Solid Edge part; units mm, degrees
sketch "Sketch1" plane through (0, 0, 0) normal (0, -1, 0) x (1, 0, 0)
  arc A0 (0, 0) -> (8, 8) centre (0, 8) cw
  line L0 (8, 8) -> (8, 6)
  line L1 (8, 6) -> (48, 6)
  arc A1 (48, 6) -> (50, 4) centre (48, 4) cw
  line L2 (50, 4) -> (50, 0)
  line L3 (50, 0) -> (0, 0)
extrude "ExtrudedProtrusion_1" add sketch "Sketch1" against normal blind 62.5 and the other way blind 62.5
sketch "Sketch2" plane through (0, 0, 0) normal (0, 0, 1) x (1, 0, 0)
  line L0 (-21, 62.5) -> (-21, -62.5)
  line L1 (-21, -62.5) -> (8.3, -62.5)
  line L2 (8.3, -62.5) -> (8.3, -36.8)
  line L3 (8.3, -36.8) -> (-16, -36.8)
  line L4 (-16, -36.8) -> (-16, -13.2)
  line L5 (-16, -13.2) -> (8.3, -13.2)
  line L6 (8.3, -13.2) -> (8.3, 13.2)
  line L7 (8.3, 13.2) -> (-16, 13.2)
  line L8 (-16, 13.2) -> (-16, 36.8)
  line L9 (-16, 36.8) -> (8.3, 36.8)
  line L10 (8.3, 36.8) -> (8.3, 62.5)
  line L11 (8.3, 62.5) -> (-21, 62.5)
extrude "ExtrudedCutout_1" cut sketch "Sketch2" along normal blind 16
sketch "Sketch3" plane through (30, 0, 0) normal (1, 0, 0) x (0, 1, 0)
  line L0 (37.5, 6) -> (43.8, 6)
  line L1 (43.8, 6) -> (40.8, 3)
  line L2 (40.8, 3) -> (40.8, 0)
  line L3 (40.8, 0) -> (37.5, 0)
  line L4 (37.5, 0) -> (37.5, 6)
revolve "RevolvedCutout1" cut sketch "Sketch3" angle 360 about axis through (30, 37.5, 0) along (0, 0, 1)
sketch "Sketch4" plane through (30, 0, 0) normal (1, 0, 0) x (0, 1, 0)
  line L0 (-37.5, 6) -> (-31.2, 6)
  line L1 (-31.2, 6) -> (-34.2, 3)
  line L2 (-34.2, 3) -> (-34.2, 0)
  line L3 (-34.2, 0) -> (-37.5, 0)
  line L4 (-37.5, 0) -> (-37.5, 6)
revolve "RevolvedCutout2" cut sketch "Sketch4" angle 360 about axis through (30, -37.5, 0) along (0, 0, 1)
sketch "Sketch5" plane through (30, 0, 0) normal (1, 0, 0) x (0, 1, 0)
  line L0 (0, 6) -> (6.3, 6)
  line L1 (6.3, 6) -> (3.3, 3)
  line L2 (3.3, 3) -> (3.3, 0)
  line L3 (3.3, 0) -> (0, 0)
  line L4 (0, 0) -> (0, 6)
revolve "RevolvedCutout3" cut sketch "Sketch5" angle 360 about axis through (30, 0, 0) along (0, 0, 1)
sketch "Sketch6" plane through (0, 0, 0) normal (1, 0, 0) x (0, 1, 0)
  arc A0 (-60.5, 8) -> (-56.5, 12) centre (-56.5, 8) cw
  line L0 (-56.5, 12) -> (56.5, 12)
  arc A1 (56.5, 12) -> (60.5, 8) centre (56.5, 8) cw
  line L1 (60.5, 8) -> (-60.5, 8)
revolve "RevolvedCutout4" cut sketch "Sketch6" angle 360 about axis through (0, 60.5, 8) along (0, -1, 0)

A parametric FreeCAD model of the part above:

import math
import FreeCAD as App
import Part
import Sketcher

V = App.Vector
Q = App.Units.Quantity

doc = App.newDocument("Part")
body = doc.addObject("PartDesign::Body", "Body")

# Sketch on XZ plane
sketch1 = body.newObject("Sketcher::SketchObject", "Sketch")
sketch1.AttachmentSupport = (doc.getObject("XZ_Plane"), [""])
sketch1.MapMode = "FlatFace"
sketch1.addGeometry([
    Part.ArcOfCircle(Part.Circle(V(0, 8, 0), V(0, 0, 1), 8), math.radians(0), math.radians(270)),  # 0
    Part.LineSegment(V(0, 0, 0), V(50, 0, 0)),  # 1
    Part.LineSegment(V(50, 0, 0), V(50, 4, 0)),  # 2
    Part.ArcOfCircle(Part.Circle(V(48, 4, 0), V(0, 0, 1), 2), math.radians(0), math.radians(90)),  # 3
    Part.LineSegment(V(48, 6, 0), V(8, 6, 0)),  # 4
    Part.LineSegment(V(8, 6, 0), V(8, 8, 0)),  # 5
], False)
sketch1.addConstraint([
    Sketcher.Constraint("Tangent", 0, 2, 1, 1),
    Sketcher.Constraint("Coincident", 1, 2, 2, 1),
    Sketcher.Constraint("Tangent", 2, 2, 3, 1),
    Sketcher.Constraint("Tangent", 3, 2, 4, 1),
    Sketcher.Constraint("Coincident", 4, 2, 5, 1),
    Sketcher.Constraint("Tangent", 5, 2, 0, 1),
    Sketcher.Constraint("Horizontal", 1),
    Sketcher.Constraint("Vertical", 2),
    Sketcher.Constraint("Horizontal", 4),
    Sketcher.Constraint("Vertical", 5),
    Sketcher.Constraint("Coincident", 0, 2, -1, 1),
    Sketcher.Constraint("Radius", 0, Q("8 mm")),
    Sketcher.Constraint("Radius", 3, Q("2 mm")),
    Sketcher.Constraint("DistanceX", 1, 1, 1, 2, Q("50 mm")),
    Sketcher.Constraint("DistanceY", 2, 1, 2, 2, Q("4 mm")),
])
pad1 = body.newObject("PartDesign::Pad", "Pad")
pad1.Profile = sketch1
pad1.Type = "TwoLengths"
pad1.Length = 62.5
pad1.Length2 = 62.5
pad1.Reversed = True

# Sketch on XY plane
sketch2 = body.newObject("Sketcher::SketchObject", "Sketch001")
sketch2.AttachmentSupport = (doc.getObject("XY_Plane"), [""])
sketch2.MapMode = "FlatFace"
sketch2.addGeometry([
    Part.LineSegment(V(8.3, 62.5, 0), V(-21, 62.5, 0)),  # 0
    Part.LineSegment(V(-21, 62.5, 0), V(-21, -62.5, 0)),  # 1
    Part.LineSegment(V(-21, -62.5, 0), V(8.3, -62.5, 0)),  # 2
    Part.LineSegment(V(8.3, -62.5, 0), V(8.3, -36.8, 0)),  # 3
    Part.LineSegment(V(8.3, -36.8, 0), V(-16, -36.8, 0)),  # 4
    Part.LineSegment(V(-16, -36.8, 0), V(-16, -13.2, 0)),  # 5
    Part.LineSegment(V(-16, -13.2, 0), V(8.3, -13.2, 0)),  # 6
    Part.LineSegment(V(8.3, -13.2, 0), V(8.3, 13.2, 0)),  # 7
    Part.LineSegment(V(8.3, 13.2, 0), V(-16, 13.2, 0)),  # 8
    Part.LineSegment(V(-16, 13.2, 0), V(-16, 36.8, 0)),  # 9
    Part.LineSegment(V(-16, 36.8, 0), V(8.3, 36.8, 0)),  # 10
    Part.LineSegment(V(8.3, 36.8, 0), V(8.3, 62.5, 0)),  # 11
], False)
sketch2.addConstraint([
    Sketcher.Constraint("Coincident", 0, 2, 1, 1),
    Sketcher.Constraint("Coincident", 1, 2, 2, 1),
    Sketcher.Constraint("Coincident", 2, 2, 3, 1),
    Sketcher.Constraint("Coincident", 3, 2, 4, 1),
    Sketcher.Constraint("Coincident", 4, 2, 5, 1),
    Sketcher.Constraint("Coincident", 5, 2, 6, 1),
    Sketcher.Constraint("Coincident", 6, 2, 7, 1),
    Sketcher.Constraint("Coincident", 7, 2, 8, 1),
    Sketcher.Constraint("Coincident", 8, 2, 9, 1),
    Sketcher.Constraint("Coincident", 9, 2, 10, 1),
    Sketcher.Constraint("Coincident", 10, 2, 11, 1),
    Sketcher.Constraint("Coincident", 11, 2, 0, 1),
    Sketcher.Constraint("Horizontal", 0),
    Sketcher.Constraint("Vertical", 1),
    Sketcher.Constraint("Horizontal", 2),
    Sketcher.Constraint("Vertical", 3),
    Sketcher.Constraint("Horizontal", 4),
    Sketcher.Constraint("Vertical", 5),
    Sketcher.Constraint("Horizontal", 6),
    Sketcher.Constraint("Vertical", 7),
    Sketcher.Constraint("Horizontal", 8),
    Sketcher.Constraint("Vertical", 9),
    Sketcher.Constraint("Horizontal", 10),
    Sketcher.Constraint("Vertical", 11),
    Sketcher.Constraint("Symmetric", 5, 2, 8, 2, -1),
    Sketcher.Constraint("Symmetric", 3, 2, 10, 2, -1),
    Sketcher.Constraint("Vertical", 3, 2, 6, 2),
    Sketcher.Constraint("Equal", 3, 11),
    Sketcher.Constraint("DistanceY", 1, 2, 1, 1, Q("125 mm")),
    Sketcher.Constraint("DistanceX", 0, 2, 0, 1, Q("29.3 mm")),
    Sketcher.Constraint("DistanceX", 4, 2, 4, 1, Q("24.3 mm")),
    Sketcher.Constraint("DistanceY", 3, 1, 3, 2, Q("25.7 mm")),
    Sketcher.Constraint("DistanceY", 5, 1, 5, 2, Q("23.6 mm")),
    Sketcher.Constraint("DistanceX", 0, 2, -1, 1, Q("21 mm")),
])
pocket1 = body.newObject("PartDesign::Pocket", "Pocket")
pocket1.Profile = sketch2
pocket1.Length = 16
pocket1.Reversed = True

# Sketch on YZ plane
sketch3 = body.newObject("Sketcher::SketchObject", "Sketch002")
sketch3.AttachmentSupport = (doc.getObject("YZ_Plane"), [""])
sketch3.MapMode = "FlatFace"
sketch3.AttachmentOffset = App.Placement(V(0, 0, 30), App.Rotation())
sketch3.addGeometry([
    Part.LineSegment(V(43.8, 6, 0), V(37.5, 6, 0)),  # 0
    Part.LineSegment(V(37.5, 6, 0), V(37.5, 0, 0)),  # 1
    Part.LineSegment(V(37.5, 0, 0), V(40.8, 0, 0)),  # 2
    Part.LineSegment(V(40.8, 0, 0), V(40.8, 3, 0)),  # 3
    Part.LineSegment(V(40.8, 3, 0), V(43.8, 6, 0)),  # 4
], False)
sketch3.addGeometry(Part.LineSegment(V(37.5, 0, 0), V(37.5, 6, 0)), True)  # axis
sketch3.addConstraint([
    Sketcher.Constraint("Coincident", 0, 2, 1, 1),
    Sketcher.Constraint("Coincident", 1, 2, 2, 1),
    Sketcher.Constraint("Coincident", 2, 2, 3, 1),
    Sketcher.Constraint("Coincident", 3, 2, 4, 1),
    Sketcher.Constraint("Coincident", 4, 2, 0, 1),
    Sketcher.Constraint("Horizontal", 0),
    Sketcher.Constraint("Vertical", 1),
    Sketcher.Constraint("Horizontal", 2),
    Sketcher.Constraint("Vertical", 3),
    Sketcher.Constraint("Vertical", 5),
    Sketcher.Constraint("Coincident", 5, 1, 1, 2),
    Sketcher.Constraint("PointOnObject", 1, 2, -1),
    Sketcher.Constraint("Horizontal", 4, 2, 5, 2),
    Sketcher.Constraint("DistanceY", 1, 2, 1, 1, Q("6 mm")),
    Sketcher.Constraint("DistanceY", 3, 1, 3, 2, Q("3 mm")),
    Sketcher.Constraint("Angle", 4, Q("45 deg")),
    Sketcher.Constraint("DistanceX", 0, 2, 0, 1, Q("6.3 mm")),
    Sketcher.Constraint("DistanceX", -1, 1, 0, 2, Q("37.5 mm")),
])
groove = body.newObject("PartDesign::Groove", "Groove")
groove.Profile = sketch3
groove.ReferenceAxis = (sketch3, ["Axis0"])
groove.Angle = 360

# Sketch on YZ plane
sketch4 = body.newObject("Sketcher::SketchObject", "Sketch003")
sketch4.AttachmentSupport = (doc.getObject("YZ_Plane"), [""])
sketch4.MapMode = "FlatFace"
sketch4.AttachmentOffset = App.Placement(V(0, 0, 30), App.Rotation())
sketch4.addGeometry([
    Part.LineSegment(V(-31.2, 6, 0), V(-37.5, 6, 0)),  # 0
    Part.LineSegment(V(-37.5, 6, 0), V(-37.5, 0, 0)),  # 1
    Part.LineSegment(V(-37.5, 0, 0), V(-34.2, 0, 0)),  # 2
    Part.LineSegment(V(-34.2, 0, 0), V(-34.2, 3, 0)),  # 3
    Part.LineSegment(V(-34.2, 3, 0), V(-31.2, 6, 0)),  # 4
], False)
sketch4.addGeometry(Part.LineSegment(V(-37.5, 0, 0), V(-37.5, 6, 0)), True)  # axis
sketch4.addConstraint([
    Sketcher.Constraint("Coincident", 0, 2, 1, 1),
    Sketcher.Constraint("Coincident", 1, 2, 2, 1),
    Sketcher.Constraint("Coincident", 2, 2, 3, 1),
    Sketcher.Constraint("Coincident", 3, 2, 4, 1),
    Sketcher.Constraint("Coincident", 4, 2, 0, 1),
    Sketcher.Constraint("Horizontal", 0),
    Sketcher.Constraint("Vertical", 1),
    Sketcher.Constraint("Horizontal", 2),
    Sketcher.Constraint("Vertical", 3),
    Sketcher.Constraint("Vertical", 5),
    Sketcher.Constraint("Coincident", 5, 1, 1, 2),
    Sketcher.Constraint("PointOnObject", 1, 2, -1),
    Sketcher.Constraint("Horizontal", 4, 2, 5, 2),
    Sketcher.Constraint("DistanceY", 1, 2, 1, 1, Q("6 mm")),
    Sketcher.Constraint("DistanceY", 3, 1, 3, 2, Q("3 mm")),
    Sketcher.Constraint("Angle", 4, Q("45 deg")),
    Sketcher.Constraint("DistanceX", 0, 2, 0, 1, Q("6.3 mm")),
    Sketcher.Constraint("DistanceX", 0, 2, -1, 1, Q("37.5 mm")),
])
groove2 = body.newObject("PartDesign::Groove", "Groove001")
groove2.Profile = sketch4
groove2.ReferenceAxis = (sketch4, ["Axis0"])
groove2.Angle = 360

# Sketch on YZ plane
sketch5 = body.newObject("Sketcher::SketchObject", "Sketch004")
sketch5.AttachmentSupport = (doc.getObject("YZ_Plane"), [""])
sketch5.MapMode = "FlatFace"
sketch5.AttachmentOffset = App.Placement(V(0, 0, 30), App.Rotation())
sketch5.addGeometry([
    Part.LineSegment(V(6.3, 6, 0), V(0, 6, 0)),  # 0
    Part.LineSegment(V(0, 6, 0), V(0, 0, 0)),  # 1
    Part.LineSegment(V(0, 0, 0), V(3.3, 0, 0)),  # 2
    Part.LineSegment(V(3.3, 0, 0), V(3.3, 3, 0)),  # 3
    Part.LineSegment(V(3.3, 3, 0), V(6.3, 6, 0)),  # 4
], False)
sketch5.addConstraint([
    Sketcher.Constraint("Coincident", 0, 2, 1, 1),
    Sketcher.Constraint("Coincident", 1, 2, 2, 1),
    Sketcher.Constraint("Coincident", 2, 2, 3, 1),
    Sketcher.Constraint("Coincident", 3, 2, 4, 1),
    Sketcher.Constraint("Coincident", 4, 2, 0, 1),
    Sketcher.Constraint("Horizontal", 0),
    Sketcher.Constraint("Vertical", 1),
    Sketcher.Constraint("Horizontal", 2),
    Sketcher.Constraint("Vertical", 3),
    Sketcher.Constraint("Coincident", 1, 2, -1, 1),
    Sketcher.Constraint("DistanceY", 1, 2, 1, 1, Q("6 mm")),
    Sketcher.Constraint("DistanceY", 3, 1, 3, 2, Q("3 mm")),
    Sketcher.Constraint("Angle", 4, Q("45 deg")),
    Sketcher.Constraint("DistanceX", 0, 2, 0, 1, Q("6.3 mm")),
])
groove3 = body.newObject("PartDesign::Groove", "Groove002")
groove3.Profile = sketch5
groove3.ReferenceAxis = (sketch5, ["V_Axis"])
groove3.Angle = 360

# Sketch on YZ plane
sketch6 = body.newObject("Sketcher::SketchObject", "Sketch005")
sketch6.AttachmentSupport = (doc.getObject("YZ_Plane"), [""])
sketch6.MapMode = "FlatFace"
sketch6.addGeometry([
    Part.ArcOfCircle(Part.Circle(V(-56.5, 8, 0), V(0, 0, 1), 4), math.radians(90), math.radians(180)),
    Part.LineSegment(V(-60.5, 8, 0), V(60.5, 8, 0)),
    Part.ArcOfCircle(Part.Circle(V(56.5, 8, 0), V(0, 0, 1), 4), math.radians(0), math.radians(90)),
    Part.LineSegment(V(56.5, 12, 0), V(-56.5, 12, 0)),
], False)
sketch6.addGeometry(Part.LineSegment(V(60.5, 8, 0), V(-60.5, 8, 0)), True)  # axis
sketch6.addConstraint([
    Sketcher.Constraint("Coincident", 0, 2, 1, 1),
    Sketcher.Constraint("Coincident", 1, 2, 2, 1),
    Sketcher.Constraint("Tangent", 2, 2, 3, 1),
    Sketcher.Constraint("Tangent", 3, 2, 0, 1),
    Sketcher.Constraint("Horizontal", 1),
    Sketcher.Constraint("Horizontal", 3),
    Sketcher.Constraint("Horizontal", 4),
    Sketcher.Constraint("Coincident", 4, 1, 1, 2),
    Sketcher.Constraint("Equal", 0, 2),
    Sketcher.Constraint("Horizontal", 2, 3, 0, 2),
    Sketcher.Constraint("Equal", 1, 4),
    Sketcher.Constraint("Radius", 0, Q("4 mm")),
    Sketcher.Constraint("DistanceX", 1, 1, 1, 2, Q("121 mm")),
    Sketcher.Constraint("DistanceY", -1, 1, 0, 3, Q("8 mm")),
    Sketcher.Constraint("DistanceX", 0, 3, -1, 1, Q("56.5 mm")),
])
groove4 = body.newObject("PartDesign::Groove", "Groove003")
groove4.Profile = sketch6
groove4.ReferenceAxis = (sketch6, ["Axis0"])
groove4.Angle = 360

doc.recompute()
